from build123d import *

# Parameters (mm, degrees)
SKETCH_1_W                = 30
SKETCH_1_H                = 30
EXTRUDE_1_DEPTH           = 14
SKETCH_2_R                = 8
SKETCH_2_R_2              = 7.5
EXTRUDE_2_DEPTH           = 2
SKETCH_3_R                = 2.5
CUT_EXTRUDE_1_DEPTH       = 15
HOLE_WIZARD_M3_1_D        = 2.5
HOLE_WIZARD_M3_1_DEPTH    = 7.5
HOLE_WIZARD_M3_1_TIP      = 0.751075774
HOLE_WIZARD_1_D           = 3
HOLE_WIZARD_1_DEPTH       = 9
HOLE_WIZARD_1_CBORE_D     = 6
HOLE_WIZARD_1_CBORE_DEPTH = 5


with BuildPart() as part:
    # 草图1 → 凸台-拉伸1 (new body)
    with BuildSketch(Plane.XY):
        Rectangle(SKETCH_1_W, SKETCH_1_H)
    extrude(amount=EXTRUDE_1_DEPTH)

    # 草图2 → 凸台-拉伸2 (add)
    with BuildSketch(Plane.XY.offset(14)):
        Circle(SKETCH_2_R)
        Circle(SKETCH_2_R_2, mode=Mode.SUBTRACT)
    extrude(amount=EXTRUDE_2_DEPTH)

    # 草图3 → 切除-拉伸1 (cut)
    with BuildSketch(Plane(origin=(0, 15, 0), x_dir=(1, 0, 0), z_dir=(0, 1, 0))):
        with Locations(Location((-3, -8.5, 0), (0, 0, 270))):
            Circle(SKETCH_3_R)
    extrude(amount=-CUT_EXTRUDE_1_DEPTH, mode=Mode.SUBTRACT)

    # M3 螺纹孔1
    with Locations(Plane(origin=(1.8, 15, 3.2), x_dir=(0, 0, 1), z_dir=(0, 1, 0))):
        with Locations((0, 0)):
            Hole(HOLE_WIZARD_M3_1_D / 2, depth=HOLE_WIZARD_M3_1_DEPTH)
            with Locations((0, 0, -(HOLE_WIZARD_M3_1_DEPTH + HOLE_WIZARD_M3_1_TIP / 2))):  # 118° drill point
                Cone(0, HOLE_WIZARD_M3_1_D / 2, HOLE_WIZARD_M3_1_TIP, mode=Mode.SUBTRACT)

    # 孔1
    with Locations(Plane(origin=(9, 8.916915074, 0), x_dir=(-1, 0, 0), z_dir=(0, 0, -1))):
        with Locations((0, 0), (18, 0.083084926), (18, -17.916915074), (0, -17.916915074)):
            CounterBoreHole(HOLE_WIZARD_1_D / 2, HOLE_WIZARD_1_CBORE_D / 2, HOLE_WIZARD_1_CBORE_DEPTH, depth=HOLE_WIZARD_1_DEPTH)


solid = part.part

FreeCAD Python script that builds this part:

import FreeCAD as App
import Part
import Sketcher
from FreeCAD import Vector

doc = App.newDocument("Part")
body = doc.addObject("PartDesign::Body", "Body")

sketch1 = body.newObject("Sketcher::SketchObject", "Sketch")
sketch1.AttachmentSupport = (doc.getObject("XY_Plane"), [""])
sketch1.MapMode = "FlatFace"
sketch1.addGeometry([
    Part.LineSegment(Vector(-15, 15, 0), Vector(-15, -15, 0)),
    Part.LineSegment(Vector(-15, -15, 0), Vector(15, -15, 0)),
    Part.LineSegment(Vector(15, -15, 0), Vector(15, 15, 0)),
    Part.LineSegment(Vector(15, 15, 0), Vector(-15, 15, 0)),
], False)
sketch1.addConstraint([
    Sketcher.Constraint("Coincident", 0, 2, 1, 1),
    Sketcher.Constraint("Coincident", 1, 2, 2, 1),
    Sketcher.Constraint("Coincident", 2, 2, 3, 1),
    Sketcher.Constraint("Coincident", 3, 2, 0, 1),
    Sketcher.Constraint("Vertical", 0),
    Sketcher.Constraint("Horizontal", 1),
    Sketcher.Constraint("Vertical", 2),
    Sketcher.Constraint("Horizontal", 3),
    Sketcher.Constraint("Symmetric", 0, 2, 2, 2, -1, 1),
    Sketcher.Constraint("Equal", 3, 0),
    Sketcher.Constraint("DistanceX", 1, 1, 1, 2, 30.0),
])
pad1 = body.newObject("PartDesign::Pad", "Pad")
pad1.Profile = sketch1
pad1.Length = 14

sketch2 = body.newObject("Sketcher::SketchObject", "Sketch001")
sketch2.AttachmentSupport = (doc.getObject("XY_Plane"), [""])
sketch2.MapMode = "FlatFace"
sketch2.AttachmentOffset = App.Placement(Vector(0, 0, 14), App.Rotation())
sketch2.addGeometry([
    Part.Circle(Vector(0, 0, 0), Vector(0, 0, 1), 8),
    Part.Circle(Vector(0, 0, 0), Vector(0, 0, 1), 7.5),
], False)
sketch2.addConstraint([
    Sketcher.Constraint("Coincident", 0, 3, -1, 1),
    Sketcher.Constraint("Coincident", 1, 3, -1, 1),
    Sketcher.Constraint("Diameter", 0, 16.0),
    Sketcher.Constraint("Diameter", 1, 15.0),
])
pad2 = body.newObject("PartDesign::Pad", "Pad001")
pad2.Profile = sketch2
pad2.Length = 2

sketch3 = body.newObject("Sketcher::SketchObject", "Sketch002")
sketch3.AttachmentSupport = (doc.getObject("XZ_Plane"), [""])
sketch3.MapMode = "FlatFace"
sketch3.AttachmentOffset = App.Placement(Vector(0, 0, -15), App.Rotation())
sketch3.addGeometry(Part.Circle(Vector(-3, 8.5, 0), Vector(0, 0, 1), 2.5), False)
sketch3.addConstraint([
    Sketcher.Constraint("Diameter", 0, 5.0),
    Sketcher.Constraint("DistanceX", 0, 3, -1, 1, 3.0),
    Sketcher.Constraint("DistanceY", -1, 1, 0, 3, 8.5),
])
pocket1 = body.newObject("PartDesign::Pocket", "Pocket")
pocket1.Profile = sketch3
pocket1.Length = 15
pocket1.Reversed = True

sketch4 = body.newObject("Sketcher::SketchObject", "Sketch003")
sketch4.AttachmentSupport = (doc.getObject("XZ_Plane"), [""])
sketch4.MapMode = "FlatFace"
sketch4.AttachmentOffset = App.Placement(Vector(0, 0, -15), App.Rotation())
sketch4.addGeometry(Part.Circle(Vector(1.8, 3.2, 0), Vector(0, 0, 1), 1.25), False)
sketch4.addConstraint([
    Sketcher.Constraint("Diameter", 0, 2.5),
    Sketcher.Constraint("DistanceX", -1, 1, 0, 3, 1.8),
    Sketcher.Constraint("DistanceY", -1, 1, 0, 3, 3.2),
])
doc.recompute()
hole = body.newObject("PartDesign::Hole", "Hole")
hole.Profile = sketch4
hole.ThreadType = "None"
hole.Diameter = 2.5
hole.DepthType = "Dimension"
hole.Depth = 7.5
hole.DrillPoint = "Angled"
hole.DrillPointAngle = 118
hole.Reversed = True

sketch5 = body.newObject("Sketcher::SketchObject", "Sketch004")
sketch5.AttachmentSupport = (doc.getObject("XY_Plane"), [""])
sketch5.MapMode = "FlatFace"
sketch5.addGeometry([
    Part.Circle(Vector(9, 8.916915, 0), Vector(0, 0, 1), 1.5),
    Part.Circle(Vector(-9, 9, 0), Vector(0, 0, 1), 1.5),
    Part.Circle(Vector(-9, -9, 0), Vector(0, 0, 1), 1.5),
    Part.Circle(Vector(9, -9, 0), Vector(0, 0, 1), 1.5),
], False)
sketch5.addConstraint([
    Sketcher.Constraint("Equal", 0, 1),
    Sketcher.Constraint("Equal", 1, 2),
    Sketcher.Constraint("Equal", 2, 3),
    Sketcher.Constraint("Symmetric", 1, 3, 3, 3, -1, 1),
    Sketcher.Constraint("Symmetric", 2, 3, 3, 3, -2),
    Sketcher.Constraint("Vertical", 0, 3, 3, 3),
    Sketcher.Constraint("Diameter", 0, 3.0),
    Sketcher.Constraint("DistanceX", -1, 1, 0, 3, 9.0),
    Sketcher.Constraint("DistanceY", -1, 1, 1, 3, 9.0),
    Sketcher.Constraint("DistanceY", -1, 1, 0, 3, 8.916915),
])
doc.recompute()
hole2 = body.newObject("PartDesign::Hole", "Hole001")
hole2.Profile = sketch5
hole2.ThreadType = "None"
hole2.Diameter = 3
hole2.DepthType = "Dimension"
hole2.Depth = 9
hole2.DrillPoint = "Flat"
hole2.HoleCutType = "Counterbore"
hole2.HoleCutDiameter = 6
hole2.HoleCutDepth = 5
hole2.Reversed = True

doc.recompute()
